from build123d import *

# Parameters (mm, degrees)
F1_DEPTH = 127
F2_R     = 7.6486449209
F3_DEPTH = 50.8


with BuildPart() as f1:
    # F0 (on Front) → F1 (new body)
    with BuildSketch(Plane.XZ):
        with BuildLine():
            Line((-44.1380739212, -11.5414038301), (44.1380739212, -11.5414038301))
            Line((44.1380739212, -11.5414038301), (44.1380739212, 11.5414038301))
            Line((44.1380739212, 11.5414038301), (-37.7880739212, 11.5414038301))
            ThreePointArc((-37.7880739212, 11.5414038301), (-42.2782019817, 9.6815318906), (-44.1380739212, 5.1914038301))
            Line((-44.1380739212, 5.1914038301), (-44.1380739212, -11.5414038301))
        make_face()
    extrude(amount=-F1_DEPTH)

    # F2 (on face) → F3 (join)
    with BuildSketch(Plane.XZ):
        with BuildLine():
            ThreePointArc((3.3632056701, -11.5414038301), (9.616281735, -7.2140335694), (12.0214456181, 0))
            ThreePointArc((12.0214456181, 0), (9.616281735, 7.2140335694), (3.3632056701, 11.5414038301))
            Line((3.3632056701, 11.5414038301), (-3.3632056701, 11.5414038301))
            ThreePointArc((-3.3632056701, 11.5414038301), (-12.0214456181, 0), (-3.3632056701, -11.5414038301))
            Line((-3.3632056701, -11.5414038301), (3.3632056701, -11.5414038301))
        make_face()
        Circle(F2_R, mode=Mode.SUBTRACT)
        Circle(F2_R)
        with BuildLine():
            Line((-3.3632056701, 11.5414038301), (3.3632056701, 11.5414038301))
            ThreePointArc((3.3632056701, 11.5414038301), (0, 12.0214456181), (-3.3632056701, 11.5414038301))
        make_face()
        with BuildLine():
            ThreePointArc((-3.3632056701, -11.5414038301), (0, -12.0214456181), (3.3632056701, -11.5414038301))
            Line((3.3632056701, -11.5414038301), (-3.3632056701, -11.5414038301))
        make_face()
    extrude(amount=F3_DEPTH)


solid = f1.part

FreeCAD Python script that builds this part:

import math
import FreeCAD as App
import Part
import Sketcher

V = App.Vector
Q = App.Units.Quantity

doc = App.newDocument("Part")
body = doc.addObject("PartDesign::Body", "Body")

# Sketch on XZ plane
sketch1 = doc.addObject("Sketcher::SketchObject", "Sketch")
body.addObject(sketch1)
sketch1.AttachmentSupport = (doc.XZ_Plane, [""])
sketch1.MapMode = "FlatFace"
sketch1.addGeometry([
    Part.LineSegment(V(-44, -12, 0), V(44, -12, 0)),  # 0
    Part.LineSegment(V(44, -12, 0), V(44, 12, 0)),  # 1
    Part.LineSegment(V(44, 12, 0), V(-38, 12, 0)),  # 2
    Part.ArcOfCircle(Part.Circle(V(-38, 5, 0), V(0, 0, 1), 6), math.radians(90), math.radians(180)),  # 3
    Part.LineSegment(V(-44, 5, 0), V(-44, -12, 0)),  # 4
], False)
sketch1.addConstraint([
    Sketcher.Constraint("Coincident", 0, 2, 1, 1),
    Sketcher.Constraint("Coincident", 1, 2, 2, 1),
    Sketcher.Constraint("Tangent", 2, 2, 3, 1),
    Sketcher.Constraint("Tangent", 3, 2, 4, 1),
    Sketcher.Constraint("Coincident", 4, 2, 0, 1),
    Sketcher.Constraint("Horizontal", 0),
    Sketcher.Constraint("Vertical", 1),
    Sketcher.Constraint("Horizontal", 2),
    Sketcher.Constraint("Vertical", 4),
    Sketcher.Constraint("Symmetric", 1, 2, 4, 2, -1, 1),
    Sketcher.Constraint("Radius", 3, Q("0.25 in")),
    Sketcher.Constraint("DistanceX", 0, 1, 0, 2, 88.276148),
    Sketcher.Constraint("DistanceY", 1, 1, 1, 2, 23.082808),
])
pad1 = doc.addObject("PartDesign::Pad", "Pad")
body.addObject(pad1)
pad1.Profile = sketch1
pad1.Length = Q("5 in")
pad1.Reversed = True

# Sketch on XZ plane
sketch2 = doc.addObject("Sketcher::SketchObject", "Sketch001")
body.addObject(sketch2)
sketch2.AttachmentSupport = (doc.XZ_Plane, [""])
sketch2.MapMode = "FlatFace"
sketch2.addGeometry([
    Part.ArcOfCircle(Part.Circle(V(0, 0, 0), V(0, 0, 1), 12), math.radians(-74), math.radians(0)),  # 0
    Part.ArcOfCircle(Part.Circle(V(0, 0, 0), V(0, 0, 1), 12), math.radians(0), math.radians(74)),  # 1
    Part.ArcOfCircle(Part.Circle(V(0, 0, 0), V(0, 0, 1), 12), math.radians(74), math.radians(106)),  # 2
    Part.ArcOfCircle(Part.Circle(V(0, 0, 0), V(0, 0, 1), 12), math.radians(106), math.radians(254)),  # 3
    Part.ArcOfCircle(Part.Circle(V(0, 0, 0), V(0, 0, 1), 12), math.radians(-106), math.radians(-74)),  # 4
], False)
sketch2.addConstraint([
    Sketcher.Constraint("Tangent", 0, 2, 1, 1),
    Sketcher.Constraint("Tangent", 1, 2, 2, 1),
    Sketcher.Constraint("Tangent", 2, 2, 3, 1),
    Sketcher.Constraint("Tangent", 3, 2, 4, 1),
    Sketcher.Constraint("Tangent", 4, 2, 0, 1),
    Sketcher.Constraint("Coincident", 0, 3, -1, 1),
    Sketcher.Constraint("Coincident", 2, 3, -1, 1),
    Sketcher.Constraint("PointOnObject", 0, 2, -1),
    Sketcher.Constraint("Horizontal", 1, 2, 2, 2),
    Sketcher.Constraint("Horizontal", 3, 2, 4, 2),
    Sketcher.Constraint("Vertical", 2, 2, 3, 2),
    Sketcher.Constraint("Radius", 0, 12.021446),
    Sketcher.Constraint("DistanceX", 2, 2, 1, 2, 6.726411),
])
pad2 = doc.addObject("PartDesign::Pad", "Pad001")
body.addObject(pad2)
pad2.Profile = sketch2
pad2.Length = Q("2 in")

doc.recompute()
